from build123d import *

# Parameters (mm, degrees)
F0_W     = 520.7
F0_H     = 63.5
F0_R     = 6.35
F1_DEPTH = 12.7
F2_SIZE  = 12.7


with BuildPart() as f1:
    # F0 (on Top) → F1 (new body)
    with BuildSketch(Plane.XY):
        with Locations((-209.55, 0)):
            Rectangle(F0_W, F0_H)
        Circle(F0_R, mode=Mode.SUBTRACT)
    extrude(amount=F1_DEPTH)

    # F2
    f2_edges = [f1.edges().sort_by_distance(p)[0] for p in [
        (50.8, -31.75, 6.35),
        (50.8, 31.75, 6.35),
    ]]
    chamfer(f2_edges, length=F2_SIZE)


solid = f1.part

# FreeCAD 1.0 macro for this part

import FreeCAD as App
import Part
import Sketcher
Q = App.Units.Quantity


def edges_at(feature, points):
    """Names of the edges that pass closest to the given points."""
    edges = feature.Shape.Edges
    near = lambda p: min(range(len(edges)), key=lambda i: edges[i].distToShape(Part.Vertex(*p))[0])
    return sorted({f"Edge{near(p) + 1}" for p in points})


def add_polygon(sketch, points):
    """Adds a closed chain of lines whose ends are joined by coincident constraints."""
    first, n = sketch.GeometryCount, len(points)
    for a, b in zip(points, points[1:] + points[:1]):
        sketch.addGeometry(Part.LineSegment(App.Vector(*a, 0), App.Vector(*b, 0)), False)
    for i in range(n):
        sketch.addConstraint(Sketcher.Constraint("Coincident", first + i, 2, first + (i + 1) % n, 1))

doc = App.newDocument("Part")
body = doc.addObject("PartDesign::Body", "Body")

# Sketch on XY plane
sketch1 = body.newObject("Sketcher::SketchObject", "Sketch")
sketch1.AttachmentSupport = (doc.getObject("XY_Plane"), [""])
sketch1.MapMode = "FlatFace"
add_polygon(sketch1, [(-469.9, 31.75), (-469.9, -31.75), (50.8, -31.75), (50.8, 31.75)])  # lines 0-3
sketch1.addGeometry(Part.Circle(App.Vector(0, 0, 0), App.Vector(0, 0, 1), 6.35), False)  # 4
sketch1.addConstraint(Sketcher.Constraint("Vertical", 0))
sketch1.addConstraint(Sketcher.Constraint("Horizontal", 1))
sketch1.addConstraint(Sketcher.Constraint("Vertical", 2))
sketch1.addConstraint(Sketcher.Constraint("Horizontal", 3))
sketch1.addConstraint(Sketcher.Constraint("Coincident", 4, 3, -1, 1))
sketch1.addConstraint(Sketcher.Constraint("Diameter", 4, Q("0.5 in")))
sketch1.addConstraint(Sketcher.Constraint("DistanceX", 1, 1, 1, 2, Q("20.5 in")))
sketch1.addConstraint(Sketcher.Constraint("DistanceY", 0, 2, 0, 1, Q("2.5 in")))
sketch1.addConstraint(Sketcher.Constraint("DistanceX", -1, 1, 1, 2, Q("2 in")))
sketch1.addConstraint(Sketcher.Constraint("DistanceY", 0, 2, -1, 1, Q("1.25 in")))
pad1 = body.newObject("PartDesign::Pad", "Pad")
pad1.Profile = sketch1
pad1.Length = Q("0.5 in")
doc.recompute()

chamfer = body.newObject("PartDesign::Chamfer", "Chamfer")
chamfer.Base = (pad1, edges_at(pad1, [(50.8, -31.75, 6.35), (50.8, 31.75, 6.35)]))
chamfer.Size = Q("0.5 in")

doc.recompute()
